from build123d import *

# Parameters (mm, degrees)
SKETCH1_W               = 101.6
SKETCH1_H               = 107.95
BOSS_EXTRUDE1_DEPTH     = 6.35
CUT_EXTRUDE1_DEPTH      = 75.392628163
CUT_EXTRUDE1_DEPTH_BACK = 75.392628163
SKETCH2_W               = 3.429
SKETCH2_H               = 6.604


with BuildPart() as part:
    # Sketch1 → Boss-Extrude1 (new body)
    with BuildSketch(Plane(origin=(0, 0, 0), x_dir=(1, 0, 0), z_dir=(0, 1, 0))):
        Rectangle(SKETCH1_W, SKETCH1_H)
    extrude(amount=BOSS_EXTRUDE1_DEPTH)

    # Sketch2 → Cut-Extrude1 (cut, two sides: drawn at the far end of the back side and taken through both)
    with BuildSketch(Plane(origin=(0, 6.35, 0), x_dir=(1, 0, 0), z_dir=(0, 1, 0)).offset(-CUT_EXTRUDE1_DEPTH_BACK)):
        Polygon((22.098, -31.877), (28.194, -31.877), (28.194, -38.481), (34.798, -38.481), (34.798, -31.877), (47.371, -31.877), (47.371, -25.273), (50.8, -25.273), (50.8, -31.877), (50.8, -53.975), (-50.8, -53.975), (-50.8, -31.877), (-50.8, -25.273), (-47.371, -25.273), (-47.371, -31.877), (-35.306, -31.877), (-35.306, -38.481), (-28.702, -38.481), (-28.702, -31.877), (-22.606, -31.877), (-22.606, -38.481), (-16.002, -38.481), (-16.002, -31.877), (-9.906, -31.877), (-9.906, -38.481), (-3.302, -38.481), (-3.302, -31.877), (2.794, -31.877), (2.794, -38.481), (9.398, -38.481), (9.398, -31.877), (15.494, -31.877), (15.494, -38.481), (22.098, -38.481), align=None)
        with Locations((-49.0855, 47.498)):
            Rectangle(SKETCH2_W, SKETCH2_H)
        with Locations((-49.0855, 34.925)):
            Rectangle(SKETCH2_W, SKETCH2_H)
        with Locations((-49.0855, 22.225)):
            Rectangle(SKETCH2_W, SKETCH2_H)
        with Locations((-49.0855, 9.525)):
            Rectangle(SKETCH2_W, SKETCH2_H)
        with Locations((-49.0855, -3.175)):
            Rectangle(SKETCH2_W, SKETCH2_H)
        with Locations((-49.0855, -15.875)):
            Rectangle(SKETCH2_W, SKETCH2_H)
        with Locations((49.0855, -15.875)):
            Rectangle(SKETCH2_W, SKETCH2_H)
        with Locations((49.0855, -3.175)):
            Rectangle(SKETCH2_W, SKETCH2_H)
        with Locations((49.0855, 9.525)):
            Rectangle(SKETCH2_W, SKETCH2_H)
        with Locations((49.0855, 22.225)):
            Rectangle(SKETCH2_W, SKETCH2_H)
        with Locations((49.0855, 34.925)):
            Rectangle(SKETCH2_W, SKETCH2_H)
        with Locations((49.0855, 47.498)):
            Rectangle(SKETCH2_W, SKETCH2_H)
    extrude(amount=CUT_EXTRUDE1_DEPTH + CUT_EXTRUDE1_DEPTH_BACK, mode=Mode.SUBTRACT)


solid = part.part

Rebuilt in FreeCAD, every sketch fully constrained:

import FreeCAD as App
import Part
import Sketcher
Q = App.Units.Quantity

doc = App.newDocument("Part")
params = doc.addObject("Spreadsheet::Sheet", "Params")
for row, (alias, value) in enumerate([
    ("sketch1_width", "4 in"),
    ("sketch1_height", "4.25 in"),
    ("pad1_length", "0.25 in"),
    ("sketch2_width", "4 in"),
    ("sketch2_width2", "0.24 in"),
    ("sketch2_width3", "0.26 in"),
    ("sketch2_height", "1.13 in"),
    ("sketch2_width4", "0.475 in"),
], start=1):
    params.set(f"A{row}", alias)
    params.set(f"B{row}", "=" + value)
    params.setAlias(f"B{row}", alias)

body = doc.addObject("PartDesign::Body", "Body")

sketch1 = body.newObject("Sketcher::SketchObject", "Sketch")
sketch1.AttachmentSupport = (doc.getObject("XZ_Plane"), [""])
sketch1.MapMode = "FlatFace"
sketch1.addGeometry(Part.LineSegment(App.Vector(-51, -54, 0), App.Vector(-51, 54, 0)), False)
sketch1.addGeometry(Part.LineSegment(App.Vector(-51, 54, 0), App.Vector(51, 54, 0)), False)
sketch1.addGeometry(Part.LineSegment(App.Vector(51, 54, 0), App.Vector(51, -54, 0)), False)
sketch1.addGeometry(Part.LineSegment(App.Vector(51, -54, 0), App.Vector(-51, -54, 0)), False)
sketch1.addConstraint(Sketcher.Constraint("Coincident", 0, 2, 1, 1))
sketch1.addConstraint(Sketcher.Constraint("Coincident", 1, 2, 2, 1))
sketch1.addConstraint(Sketcher.Constraint("Coincident", 2, 2, 3, 1))
sketch1.addConstraint(Sketcher.Constraint("Coincident", 3, 2, 0, 1))
sketch1.addConstraint(Sketcher.Constraint("Vertical", 0))
sketch1.addConstraint(Sketcher.Constraint("Horizontal", 1))
sketch1.addConstraint(Sketcher.Constraint("Vertical", 2))
sketch1.addConstraint(Sketcher.Constraint("Horizontal", 3))
sketch1.addConstraint(Sketcher.Constraint("Symmetric", 0, 2, 2, 2, -1, 1))
sketch1.addConstraint(Sketcher.Constraint("DistanceX", 1, 1, 1, 2, Q("4 in")))
sketch1.addConstraint(Sketcher.Constraint("DistanceY", 0, 1, 0, 2, Q("4.25 in")))
sketch1.setExpression("Constraints[9]", "Params.sketch1_width")
sketch1.setExpression("Constraints[10]", "Params.sketch1_height")
pad1 = body.newObject("PartDesign::Pad", "Pad")
pad1.Profile = sketch1
pad1.setExpression("Length", "Params.pad1_length")
pad1.Reversed = True

sketch2 = body.newObject("Sketcher::SketchObject", "Sketch001")
sketch2.AttachmentSupport = (doc.getObject("XZ_Plane"), [""])
sketch2.MapMode = "FlatFace"
sketch2.AttachmentOffset = App.Placement(App.Vector(0, 0, -0.25 * 25.4), App.Rotation())
sketch2.addGeometry(Part.LineSegment(App.Vector(28.2, 31.9, 0), App.Vector(22.1, 31.9, 0)), False)
sketch2.addGeometry(Part.LineSegment(App.Vector(22.1, 31.9, 0), App.Vector(22.1, 38.5, 0)), False)
sketch2.addGeometry(Part.LineSegment(App.Vector(22.1, 38.5, 0), App.Vector(15.5, 38.5, 0)), False)
sketch2.addGeometry(Part.LineSegment(App.Vector(15.5, 38.5, 0), App.Vector(15.5, 31.9, 0)), False)
sketch2.addGeometry(Part.LineSegment(App.Vector(15.5, 31.9, 0), App.Vector(9.4, 31.9, 0)), False)
sketch2.addGeometry(Part.LineSegment(App.Vector(9.4, 31.9, 0), App.Vector(9.4, 38.5, 0)), False)
sketch2.addGeometry(Part.LineSegment(App.Vector(9.4, 38.5, 0), App.Vector(2.8, 38.5, 0)), False)
sketch2.addGeometry(Part.LineSegment(App.Vector(2.8, 38.5, 0), App.Vector(2.8, 31.9, 0)), False)
sketch2.addGeometry(Part.LineSegment(App.Vector(2.8, 31.9, 0), App.Vector(-3.3, 31.9, 0)), False)
sketch2.addGeometry(Part.LineSegment(App.Vector(-3.3, 31.9, 0), App.Vector(-3.3, 38.5, 0)), False)
sketch2.addGeometry(Part.LineSegment(App.Vector(-3.3, 38.5, 0), App.Vector(-9.9, 38.5, 0)), False)
sketch2.addGeometry(Part.LineSegment(App.Vector(-9.9, 38.5, 0), App.Vector(-9.9, 31.9, 0)), False)
sketch2.addGeometry(Part.LineSegment(App.Vector(-9.9, 31.9, 0), App.Vector(-16, 31.9, 0)), False)
sketch2.addGeometry(Part.LineSegment(App.Vector(-16, 31.9, 0), App.Vector(-16, 38.5, 0)), False)
sketch2.addGeometry(Part.LineSegment(App.Vector(-16, 38.5, 0), App.Vector(-22.6, 38.5, 0)), False)
sketch2.addGeometry(Part.LineSegment(App.Vector(-22.6, 38.5, 0), App.Vector(-22.6, 31.9, 0)), False)
sketch2.addGeometry(Part.LineSegment(App.Vector(-22.6, 31.9, 0), App.Vector(-28.7, 31.9, 0)), False)
sketch2.addGeometry(Part.LineSegment(App.Vector(-28.7, 31.9, 0), App.Vector(-28.7, 38.5, 0)), False)
sketch2.addGeometry(Part.LineSegment(App.Vector(-28.7, 38.5, 0), App.Vector(-35.3, 38.5, 0)), False)
sketch2.addGeometry(Part.LineSegment(App.Vector(-35.3, 38.5, 0), App.Vector(-35.3, 31.9, 0)), False)
sketch2.addGeometry(Part.LineSegment(App.Vector(-35.3, 31.9, 0), App.Vector(-47.4, 31.9, 0)), False)
sketch2.addGeometry(Part.LineSegment(App.Vector(-47.4, 31.9, 0), App.Vector(-47.4, 25.3, 0)), False)
sketch2.addGeometry(Part.LineSegment(App.Vector(-47.4, 25.3, 0), App.Vector(-50.8, 25.3, 0)), False)
sketch2.addGeometry(Part.LineSegment(App.Vector(-50.8, 25.3, 0), App.Vector(-50.8, 54, 0)), False)
sketch2.addGeometry(Part.LineSegment(App.Vector(-50.8, 54, 0), App.Vector(50.8, 54, 0)), False)
sketch2.addGeometry(Part.LineSegment(App.Vector(50.8, 54, 0), App.Vector(50.8, 25.3, 0)), False)
sketch2.addGeometry(Part.LineSegment(App.Vector(50.8, 25.3, 0), App.Vector(47.4, 25.3, 0)), False)
sketch2.addGeometry(Part.LineSegment(App.Vector(47.4, 25.3, 0), App.Vector(47.4, 31.9, 0)), False)
sketch2.addGeometry(Part.LineSegment(App.Vector(47.4, 31.9, 0), App.Vector(34.8, 31.9, 0)), False)
sketch2.addGeometry(Part.LineSegment(App.Vector(34.8, 31.9, 0), App.Vector(34.8, 38.5, 0)), False)
sketch2.addGeometry(Part.LineSegment(App.Vector(34.8, 38.5, 0), App.Vector(28.2, 38.5, 0)), False)
sketch2.addGeometry(Part.LineSegment(App.Vector(28.2, 38.5, 0), App.Vector(28.2, 31.9, 0)), False)
sketch2.addGeometry(Part.LineSegment(App.Vector(-50.8, -50.8, 0), App.Vector(-50.8, -44.2, 0)), False)
sketch2.addGeometry(Part.LineSegment(App.Vector(-50.8, -44.2, 0), App.Vector(-47.4, -44.2, 0)), False)
sketch2.addGeometry(Part.LineSegment(App.Vector(-47.4, -44.2, 0), App.Vector(-47.4, -50.8, 0)), False)
sketch2.addGeometry(Part.LineSegment(App.Vector(-47.4, -50.8, 0), App.Vector(-50.8, -50.8, 0)), False)
sketch2.addGeometry(Part.LineSegment(App.Vector(-50.8, -38.2, 0), App.Vector(-50.8, -31.6, 0)), False)
sketch2.addGeometry(Part.LineSegment(App.Vector(-50.8, -31.6, 0), App.Vector(-47.4, -31.6, 0)), False)
sketch2.addGeometry(Part.LineSegment(App.Vector(-47.4, -31.6, 0), App.Vector(-47.4, -38.2, 0)), False)
sketch2.addGeometry(Part.LineSegment(App.Vector(-47.4, -38.2, 0), App.Vector(-50.8, -38.2, 0)), False)
sketch2.addGeometry(Part.LineSegment(App.Vector(-50.8, -25.5, 0), App.Vector(-50.8, -18.9, 0)), False)
sketch2.addGeometry(Part.LineSegment(App.Vector(-50.8, -18.9, 0), App.Vector(-47.4, -18.9, 0)), False)
sketch2.addGeometry(Part.LineSegment(App.Vector(-47.4, -18.9, 0), App.Vector(-47.4, -25.5, 0)), False)
sketch2.addGeometry(Part.LineSegment(App.Vector(-47.4, -25.5, 0), App.Vector(-50.8, -25.5, 0)), False)
sketch2.addGeometry(Part.LineSegment(App.Vector(-50.8, -12.8, 0), App.Vector(-50.8, -6.2, 0)), False)
sketch2.addGeometry(Part.LineSegment(App.Vector(-50.8, -6.2, 0), App.Vector(-47.4, -6.2, 0)), False)
sketch2.addGeometry(Part.LineSegment(App.Vector(-47.4, -6.2, 0), App.Vector(-47.4, -12.8, 0)), False)
sketch2.addGeometry(Part.LineSegment(App.Vector(-47.4, -12.8, 0), App.Vector(-50.8, -12.8, 0)), False)
sketch2.addGeometry(Part.LineSegment(App.Vector(-50.8, -0.1, 0), App.Vector(-50.8, 6.5, 0)), False)
sketch2.addGeometry(Part.LineSegment(App.Vector(-50.8, 6.5, 0), App.Vector(-47.4, 6.5, 0)), False)
sketch2.addGeometry(Part.LineSegment(App.Vector(-47.4, 6.5, 0), App.Vector(-47.4, -0.1, 0)), False)
sketch2.addGeometry(Part.LineSegment(App.Vector(-47.4, -0.1, 0), App.Vector(-50.8, -0.1, 0)), False)
sketch2.addGeometry(Part.LineSegment(App.Vector(-50.8, 12.6, 0), App.Vector(-50.8, 19.2, 0)), False)
sketch2.addGeometry(Part.LineSegment(App.Vector(-50.8, 19.2, 0), App.Vector(-47.4, 19.2, 0)), False)
sketch2.addGeometry(Part.LineSegment(App.Vector(-47.4, 19.2, 0), App.Vector(-47.4, 12.6, 0)), False)
sketch2.addGeometry(Part.LineSegment(App.Vector(-47.4, 12.6, 0), App.Vector(-50.8, 12.6, 0)), False)
sketch2.addGeometry(Part.LineSegment(App.Vector(47.4, 12.6, 0), App.Vector(47.4, 19.2, 0)), False)
sketch2.addGeometry(Part.LineSegment(App.Vector(47.4, 19.2, 0), App.Vector(50.8, 19.2, 0)), False)
sketch2.addGeometry(Part.LineSegment(App.Vector(50.8, 19.2, 0), App.Vector(50.8, 12.6, 0)), False)
sketch2.addGeometry(Part.LineSegment(App.Vector(50.8, 12.6, 0), App.Vector(47.4, 12.6, 0)), False)
sketch2.addGeometry(Part.LineSegment(App.Vector(47.4, -0.1, 0), App.Vector(47.4, 6.5, 0)), False)
sketch2.addGeometry(Part.LineSegment(App.Vector(47.4, 6.5, 0), App.Vector(50.8, 6.5, 0)), False)
sketch2.addGeometry(Part.LineSegment(App.Vector(50.8, 6.5, 0), App.Vector(50.8, -0.1, 0)), False)
sketch2.addGeometry(Part.LineSegment(App.Vector(50.8, -0.1, 0), App.Vector(47.4, -0.1, 0)), False)
sketch2.addGeometry(Part.LineSegment(App.Vector(47.4, -12.8, 0), App.Vector(47.4, -6.2, 0)), False)
sketch2.addGeometry(Part.LineSegment(App.Vector(47.4, -6.2, 0), App.Vector(50.8, -6.2, 0)), False)
sketch2.addGeometry(Part.LineSegment(App.Vector(50.8, -6.2, 0), App.Vector(50.8, -12.8, 0)), False)
sketch2.addGeometry(Part.LineSegment(App.Vector(50.8, -12.8, 0), App.Vector(47.4, -12.8, 0)), False)
sketch2.addGeometry(Part.LineSegment(App.Vector(47.4, -25.5, 0), App.Vector(47.4, -18.9, 0)), False)
sketch2.addGeometry(Part.LineSegment(App.Vector(47.4, -18.9, 0), App.Vector(50.8, -18.9, 0)), False)
sketch2.addGeometry(Part.LineSegment(App.Vector(50.8, -18.9, 0), App.Vector(50.8, -25.5, 0)), False)
sketch2.addGeometry(Part.LineSegment(App.Vector(50.8, -25.5, 0), App.Vector(47.4, -25.5, 0)), False)
sketch2.addGeometry(Part.LineSegment(App.Vector(47.4, -38.2, 0), App.Vector(47.4, -31.6, 0)), False)
sketch2.addGeometry(Part.LineSegment(App.Vector(47.4, -31.6, 0), App.Vector(50.8, -31.6, 0)), False)
sketch2.addGeometry(Part.LineSegment(App.Vector(50.8, -31.6, 0), App.Vector(50.8, -38.2, 0)), False)
sketch2.addGeometry(Part.LineSegment(App.Vector(50.8, -38.2, 0), App.Vector(47.4, -38.2, 0)), False)
sketch2.addGeometry(Part.LineSegment(App.Vector(47.4, -50.8, 0), App.Vector(47.4, -44.2, 0)), False)
sketch2.addGeometry(Part.LineSegment(App.Vector(47.4, -44.2, 0), App.Vector(50.8, -44.2, 0)), False)
sketch2.addGeometry(Part.LineSegment(App.Vector(50.8, -44.2, 0), App.Vector(50.8, -50.8, 0)), False)
sketch2.addGeometry(Part.LineSegment(App.Vector(50.8, -50.8, 0), App.Vector(47.4, -50.8, 0)), False)
sketch2.addConstraint(Sketcher.Constraint("Coincident", 0, 2, 1, 1))
sketch2.addConstraint(Sketcher.Constraint("Coincident", 1, 2, 2, 1))
sketch2.addConstraint(Sketcher.Constraint("Coincident", 2, 2, 3, 1))
sketch2.addConstraint(Sketcher.Constraint("Coincident", 3, 2, 4, 1))
sketch2.addConstraint(Sketcher.Constraint("Coincident", 4, 2, 5, 1))
sketch2.addConstraint(Sketcher.Constraint("Coincident", 5, 2, 6, 1))
sketch2.addConstraint(Sketcher.Constraint("Coincident", 6, 2, 7, 1))
sketch2.addConstraint(Sketcher.Constraint("Coincident", 7, 2, 8, 1))
sketch2.addConstraint(Sketcher.Constraint("Coincident", 8, 2, 9, 1))
sketch2.addConstraint(Sketcher.Constraint("Coincident", 9, 2, 10, 1))
sketch2.addConstraint(Sketcher.Constraint("Coincident", 10, 2, 11, 1))
sketch2.addConstraint(Sketcher.Constraint("Coincident", 11, 2, 12, 1))
sketch2.addConstraint(Sketcher.Constraint("Coincident", 12, 2, 13, 1))
sketch2.addConstraint(Sketcher.Constraint("Coincident", 13, 2, 14, 1))
sketch2.addConstraint(Sketcher.Constraint("Coincident", 14, 2, 15, 1))
sketch2.addConstraint(Sketcher.Constraint("Coincident", 15, 2, 16, 1))
sketch2.addConstraint(Sketcher.Constraint("Coincident", 16, 2, 17, 1))
sketch2.addConstraint(Sketcher.Constraint("Coincident", 17, 2, 18, 1))
sketch2.addConstraint(Sketcher.Constraint("Coincident", 18, 2, 19, 1))
sketch2.addConstraint(Sketcher.Constraint("Coincident", 19, 2, 20, 1))
sketch2.addConstraint(Sketcher.Constraint("Coincident", 20, 2, 21, 1))
sketch2.addConstraint(Sketcher.Constraint("Coincident", 21, 2, 22, 1))
sketch2.addConstraint(Sketcher.Constraint("Coincident", 22, 2, 23, 1))
sketch2.addConstraint(Sketcher.Constraint("Coincident", 23, 2, 24, 1))
sketch2.addConstraint(Sketcher.Constraint("Coincident", 24, 2, 25, 1))
sketch2.addConstraint(Sketcher.Constraint("Coincident", 25, 2, 26, 1))
sketch2.addConstraint(Sketcher.Constraint("Coincident", 26, 2, 27, 1))
sketch2.addConstraint(Sketcher.Constraint("Coincident", 27, 2, 28, 1))
sketch2.addConstraint(Sketcher.Constraint("Coincident", 28, 2, 29, 1))
sketch2.addConstraint(Sketcher.Constraint("Coincident", 29, 2, 30, 1))
sketch2.addConstraint(Sketcher.Constraint("Coincident", 30, 2, 31, 1))
sketch2.addConstraint(Sketcher.Constraint("Coincident", 31, 2, 0, 1))
sketch2.addConstraint(Sketcher.Constraint("Coincident", 32, 2, 33, 1))
sketch2.addConstraint(Sketcher.Constraint("Coincident", 33, 2, 34, 1))
sketch2.addConstraint(Sketcher.Constraint("Coincident", 34, 2, 35, 1))
sketch2.addConstraint(Sketcher.Constraint("Coincident", 35, 2, 32, 1))
sketch2.addConstraint(Sketcher.Constraint("Coincident", 36, 2, 37, 1))
sketch2.addConstraint(Sketcher.Constraint("Coincident", 37, 2, 38, 1))
sketch2.addConstraint(Sketcher.Constraint("Coincident", 38, 2, 39, 1))
sketch2.addConstraint(Sketcher.Constraint("Coincident", 39, 2, 36, 1))
sketch2.addConstraint(Sketcher.Constraint("Coincident", 40, 2, 41, 1))
sketch2.addConstraint(Sketcher.Constraint("Coincident", 41, 2, 42, 1))
sketch2.addConstraint(Sketcher.Constraint("Coincident", 42, 2, 43, 1))
sketch2.addConstraint(Sketcher.Constraint("Coincident", 43, 2, 40, 1))
sketch2.addConstraint(Sketcher.Constraint("Coincident", 44, 2, 45, 1))
sketch2.addConstraint(Sketcher.Constraint("Coincident", 45, 2, 46, 1))
sketch2.addConstraint(Sketcher.Constraint("Coincident", 46, 2, 47, 1))
sketch2.addConstraint(Sketcher.Constraint("Coincident", 47, 2, 44, 1))
sketch2.addConstraint(Sketcher.Constraint("Coincident", 48, 2, 49, 1))
sketch2.addConstraint(Sketcher.Constraint("Coincident", 49, 2, 50, 1))
sketch2.addConstraint(Sketcher.Constraint("Coincident", 50, 2, 51, 1))
sketch2.addConstraint(Sketcher.Constraint("Coincident", 51, 2, 48, 1))
sketch2.addConstraint(Sketcher.Constraint("Coincident", 52, 2, 53, 1))
sketch2.addConstraint(Sketcher.Constraint("Coincident", 53, 2, 54, 1))
sketch2.addConstraint(Sketcher.Constraint("Coincident", 54, 2, 55, 1))
sketch2.addConstraint(Sketcher.Constraint("Coincident", 55, 2, 52, 1))
sketch2.addConstraint(Sketcher.Constraint("Coincident", 56, 2, 57, 1))
sketch2.addConstraint(Sketcher.Constraint("Coincident", 57, 2, 58, 1))
sketch2.addConstraint(Sketcher.Constraint("Coincident", 58, 2, 59, 1))
sketch2.addConstraint(Sketcher.Constraint("Coincident", 59, 2, 56, 1))
sketch2.addConstraint(Sketcher.Constraint("Coincident", 60, 2, 61, 1))
sketch2.addConstraint(Sketcher.Constraint("Coincident", 61, 2, 62, 1))
sketch2.addConstraint(Sketcher.Constraint("Coincident", 62, 2, 63, 1))
sketch2.addConstraint(Sketcher.Constraint("Coincident", 63, 2, 60, 1))
sketch2.addConstraint(Sketcher.Constraint("Coincident", 64, 2, 65, 1))
sketch2.addConstraint(Sketcher.Constraint("Coincident", 65, 2, 66, 1))
sketch2.addConstraint(Sketcher.Constraint("Coincident", 66, 2, 67, 1))
sketch2.addConstraint(Sketcher.Constraint("Coincident", 67, 2, 64, 1))
sketch2.addConstraint(Sketcher.Constraint("Coincident", 68, 2, 69, 1))
sketch2.addConstraint(Sketcher.Constraint("Coincident", 69, 2, 70, 1))
sketch2.addConstraint(Sketcher.Constraint("Coincident", 70, 2, 71, 1))
sketch2.addConstraint(Sketcher.Constraint("Coincident", 71, 2, 68, 1))
sketch2.addConstraint(Sketcher.Constraint("Coincident", 72, 2, 73, 1))
sketch2.addConstraint(Sketcher.Constraint("Coincident", 73, 2, 74, 1))
sketch2.addConstraint(Sketcher.Constraint("Coincident", 74, 2, 75, 1))
sketch2.addConstraint(Sketcher.Constraint("Coincident", 75, 2, 72, 1))
sketch2.addConstraint(Sketcher.Constraint("Coincident", 76, 2, 77, 1))
sketch2.addConstraint(Sketcher.Constraint("Coincident", 77, 2, 78, 1))
sketch2.addConstraint(Sketcher.Constraint("Coincident", 78, 2, 79, 1))
sketch2.addConstraint(Sketcher.Constraint("Coincident", 79, 2, 76, 1))
sketch2.addConstraint(Sketcher.Constraint("Horizontal", 0))
sketch2.addConstraint(Sketcher.Constraint("Vertical", 1))
sketch2.addConstraint(Sketcher.Constraint("Horizontal", 2))
sketch2.addConstraint(Sketcher.Constraint("Vertical", 3))
sketch2.addConstraint(Sketcher.Constraint("Horizontal", 4))
sketch2.addConstraint(Sketcher.Constraint("Vertical", 5))
sketch2.addConstraint(Sketcher.Constraint("Horizontal", 6))
sketch2.addConstraint(Sketcher.Constraint("Vertical", 7))
sketch2.addConstraint(Sketcher.Constraint("Horizontal", 8))
sketch2.addConstraint(Sketcher.Constraint("Vertical", 9))
sketch2.addConstraint(Sketcher.Constraint("Horizontal", 10))
sketch2.addConstraint(Sketcher.Constraint("Vertical", 11))
sketch2.addConstraint(Sketcher.Constraint("Horizontal", 12))
sketch2.addConstraint(Sketcher.Constraint("Vertical", 13))
sketch2.addConstraint(Sketcher.Constraint("Horizontal", 14))
sketch2.addConstraint(Sketcher.Constraint("Vertical", 15))
sketch2.addConstraint(Sketcher.Constraint("Horizontal", 16))
sketch2.addConstraint(Sketcher.Constraint("Vertical", 17))
sketch2.addConstraint(Sketcher.Constraint("Horizontal", 18))
sketch2.addConstraint(Sketcher.Constraint("Vertical", 19))
sketch2.addConstraint(Sketcher.Constraint("Horizontal", 20))
sketch2.addConstraint(Sketcher.Constraint("Vertical", 21))
sketch2.addConstraint(Sketcher.Constraint("Horizontal", 22))
sketch2.addConstraint(Sketcher.Constraint("Vertical", 23))
sketch2.addConstraint(Sketcher.Constraint("Horizontal", 24))
sketch2.addConstraint(Sketcher.Constraint("Vertical", 25))
sketch2.addConstraint(Sketcher.Constraint("Horizontal", 26))
sketch2.addConstraint(Sketcher.Constraint("Vertical", 27))
sketch2.addConstraint(Sketcher.Constraint("Horizontal", 28))
sketch2.addConstraint(Sketcher.Constraint("Vertical", 29))
sketch2.addConstraint(Sketcher.Constraint("Horizontal", 30))
sketch2.addConstraint(Sketcher.Constraint("Vertical", 31))
sketch2.addConstraint(Sketcher.Constraint("Vertical", 32))
sketch2.addConstraint(Sketcher.Constraint("Horizontal", 33))
sketch2.addConstraint(Sketcher.Constraint("Vertical", 34))
sketch2.addConstraint(Sketcher.Constraint("Horizontal", 35))
sketch2.addConstraint(Sketcher.Constraint("Vertical", 36))
sketch2.addConstraint(Sketcher.Constraint("Horizontal", 37))
sketch2.addConstraint(Sketcher.Constraint("Vertical", 38))
sketch2.addConstraint(Sketcher.Constraint("Horizontal", 39))
sketch2.addConstraint(Sketcher.Constraint("Vertical", 40))
sketch2.addConstraint(Sketcher.Constraint("Horizontal", 41))
sketch2.addConstraint(Sketcher.Constraint("Vertical", 42))
sketch2.addConstraint(Sketcher.Constraint("Horizontal", 43))
sketch2.addConstraint(Sketcher.Constraint("Vertical", 44))
sketch2.addConstraint(Sketcher.Constraint("Horizontal", 45))
sketch2.addConstraint(Sketcher.Constraint("Vertical", 46))
sketch2.addConstraint(Sketcher.Constraint("Horizontal", 47))
sketch2.addConstraint(Sketcher.Constraint("Vertical", 48))
sketch2.addConstraint(Sketcher.Constraint("Horizontal", 49))
sketch2.addConstraint(Sketcher.Constraint("Vertical", 50))
sketch2.addConstraint(Sketcher.Constraint("Horizontal", 51))
sketch2.addConstraint(Sketcher.Constraint("Vertical", 52))
sketch2.addConstraint(Sketcher.Constraint("Horizontal", 53))
sketch2.addConstraint(Sketcher.Constraint("Vertical", 54))
sketch2.addConstraint(Sketcher.Constraint("Horizontal", 55))
sketch2.addConstraint(Sketcher.Constraint("Vertical", 56))
sketch2.addConstraint(Sketcher.Constraint("Horizontal", 57))
sketch2.addConstraint(Sketcher.Constraint("Vertical", 58))
sketch2.addConstraint(Sketcher.Constraint("Horizontal", 59))
sketch2.addConstraint(Sketcher.Constraint("Vertical", 60))
sketch2.addConstraint(Sketcher.Constraint("Horizontal", 61))
sketch2.addConstraint(Sketcher.Constraint("Vertical", 62))
sketch2.addConstraint(Sketcher.Constraint("Horizontal", 63))
sketch2.addConstraint(Sketcher.Constraint("Vertical", 64))
sketch2.addConstraint(Sketcher.Constraint("Horizontal", 65))
sketch2.addConstraint(Sketcher.Constraint("Vertical", 66))
sketch2.addConstraint(Sketcher.Constraint("Horizontal", 67))
sketch2.addConstraint(Sketcher.Constraint("Vertical", 68))
sketch2.addConstraint(Sketcher.Constraint("Horizontal", 69))
sketch2.addConstraint(Sketcher.Constraint("Vertical", 70))
sketch2.addConstraint(Sketcher.Constraint("Horizontal", 71))
sketch2.addConstraint(Sketcher.Constraint("Vertical", 72))
sketch2.addConstraint(Sketcher.Constraint("Horizontal", 73))
sketch2.addConstraint(Sketcher.Constraint("Vertical", 74))
sketch2.addConstraint(Sketcher.Constraint("Horizontal", 75))
sketch2.addConstraint(Sketcher.Constraint("Vertical", 76))
sketch2.addConstraint(Sketcher.Constraint("Horizontal", 77))
sketch2.addConstraint(Sketcher.Constraint("Vertical", 78))
sketch2.addConstraint(Sketcher.Constraint("Horizontal", 79))
sketch2.addConstraint(Sketcher.Constraint("Symmetric", 22, 2, 25, 2, -2))
sketch2.addConstraint(Sketcher.Constraint("Symmetric", 20, 2, 27, 2, -2))
sketch2.addConstraint(Sketcher.Constraint("Symmetric", 53, 2, 56, 2, -2))
sketch2.addConstraint(Sketcher.Constraint("Symmetric", 55, 2, 58, 2, -2))
sketch2.addConstraint(Sketcher.Constraint("Symmetric", 49, 2, 60, 2, -2))
sketch2.addConstraint(Sketcher.Constraint("Symmetric", 51, 2, 62, 2, -2))
sketch2.addConstraint(Sketcher.Constraint("Symmetric", 45, 2, 64, 2, -2))
sketch2.addConstraint(Sketcher.Constraint("Symmetric", 47, 2, 66, 2, -2))
sketch2.addConstraint(Sketcher.Constraint("Symmetric", 41, 2, 68, 2, -2))
sketch2.addConstraint(Sketcher.Constraint("Symmetric", 43, 2, 70, 2, -2))
sketch2.addConstraint(Sketcher.Constraint("Symmetric", 37, 2, 72, 2, -2))
sketch2.addConstraint(Sketcher.Constraint("Symmetric", 39, 2, 74, 2, -2))
sketch2.addConstraint(Sketcher.Constraint("Symmetric", 33, 2, 76, 2, -2))
sketch2.addConstraint(Sketcher.Constraint("Symmetric", 35, 2, 78, 2, -2))
sketch2.addConstraint(Sketcher.Constraint("Horizontal", 0, 2, 3, 2))
sketch2.addConstraint(Sketcher.Constraint("Horizontal", 2, 2, 5, 2))
sketch2.addConstraint(Sketcher.Constraint("Horizontal", 4, 2, 7, 2))
sketch2.addConstraint(Sketcher.Constraint("Horizontal", 6, 2, 9, 2))
sketch2.addConstraint(Sketcher.Constraint("Horizontal", 8, 2, 11, 2))
sketch2.addConstraint(Sketcher.Constraint("Horizontal", 10, 2, 13, 2))
sketch2.addConstraint(Sketcher.Constraint("Horizontal", 12, 2, 15, 2))
sketch2.addConstraint(Sketcher.Constraint("Horizontal", 14, 2, 17, 2))
sketch2.addConstraint(Sketcher.Constraint("Horizontal", 16, 2, 19, 2))
sketch2.addConstraint(Sketcher.Constraint("Horizontal", 18, 2, 29, 2))
sketch2.addConstraint(Sketcher.Constraint("Vertical", 23, 2, 32, 2))
sketch2.addConstraint(Sketcher.Constraint("Vertical", 21, 2, 33, 2))
sketch2.addConstraint(Sketcher.Constraint("Vertical", 35, 2, 36, 2))
sketch2.addConstraint(Sketcher.Constraint("Vertical", 34, 2, 37, 2))
sketch2.addConstraint(Sketcher.Constraint("Vertical", 39, 2, 40, 2))
sketch2.addConstraint(Sketcher.Constraint("Vertical", 38, 2, 41, 2))
sketch2.addConstraint(Sketcher.Constraint("Vertical", 43, 2, 44, 2))
sketch2.addConstraint(Sketcher.Constraint("Vertical", 42, 2, 45, 2))
sketch2.addConstraint(Sketcher.Constraint("Vertical", 47, 2, 48, 2))
sketch2.addConstraint(Sketcher.Constraint("Vertical", 46, 2, 49, 2))
sketch2.addConstraint(Sketcher.Constraint("Vertical", 51, 2, 52, 2))
sketch2.addConstraint(Sketcher.Constraint("Vertical", 50, 2, 53, 2))
sketch2.addConstraint(Sketcher.Constraint("Equal", 0, 4))
sketch2.addConstraint(Sketcher.Constraint("Equal", 2, 6))
sketch2.addConstraint(Sketcher.Constraint("Equal", 4, 8))
sketch2.addConstraint(Sketcher.Constraint("Equal", 6, 10))
sketch2.addConstraint(Sketcher.Constraint("Equal", 8, 12))
sketch2.addConstraint(Sketcher.Constraint("Equal", 10, 14))
sketch2.addConstraint(Sketcher.Constraint("Equal", 12, 16))
sketch2.addConstraint(Sketcher.Constraint("Equal", 14, 18))
sketch2.addConstraint(Sketcher.Constraint("Equal", 18, 30))
sketch2.addConstraint(Sketcher.Constraint("Equal", 30, 1))
sketch2.addConstraint(Sketcher.Constraint("Equal", 19, 21))
sketch2.addConstraint(Sketcher.Constraint("Equal", 31, 32))
sketch2.addConstraint(Sketcher.Constraint("Equal", 34, 36))
sketch2.addConstraint(Sketcher.Constraint("Equal", 38, 40))
sketch2.addConstraint(Sketcher.Constraint("Equal", 42, 44))
sketch2.addConstraint(Sketcher.Constraint("Equal", 46, 48))
sketch2.addConstraint(Sketcher.Constraint("Equal", 50, 52))
sketch2.addConstraint(Sketcher.Constraint("DistanceX", 24, 1, 24, 2, Q("4 in")))
sketch2.addConstraint(Sketcher.Constraint("DistanceY", 34, 2, -1, 1, Q("2 in")))
sketch2.addConstraint(Sketcher.Constraint("DistanceX", 0, 2, 0, 1, Q("0.24 in")))
sketch2.addConstraint(Sketcher.Constraint("DistanceX", 2, 2, 2, 1, Q("0.26 in")))
sketch2.addConstraint(Sketcher.Constraint("DistanceY", 23, 1, 23, 2, Q("1.13 in")))
sketch2.addConstraint(Sketcher.Constraint("DistanceX", 20, 2, 20, 1, Q("0.475 in")))
sketch2.addConstraint(Sketcher.Constraint("DistanceX", 22, 2, 22, 1, Q("0.135 in")))
sketch2.addConstraint(Sketcher.Constraint("DistanceY", -1, 1, 0, 2, Q("1.255 in")))
sketch2.addConstraint(Sketcher.Constraint("DistanceY", 36, 2, -1, 1, Q("1.245 in")))
sketch2.addConstraint(Sketcher.Constraint("DistanceY", 40, 2, -1, 1, Q("0.745 in")))
sketch2.addConstraint(Sketcher.Constraint("DistanceY", 44, 2, -1, 1, Q("0.245 in")))
sketch2.addConstraint(Sketcher.Constraint("DistanceY", -1, 1, 48, 2, Q("0.255 in")))
sketch2.addConstraint(Sketcher.Constraint("DistanceY", -1, 1, 52, 2, Q("0.755 in")))
sketch2.setExpression("Constraints[213]", "Params.sketch2_width")
sketch2.setExpression("Constraints[215]", "Params.sketch2_width2")
sketch2.setExpression("Constraints[216]", "Params.sketch2_width3")
sketch2.setExpression("Constraints[217]", "Params.sketch2_height")
sketch2.setExpression("Constraints[218]", "Params.sketch2_width4")
pocket1 = body.newObject("PartDesign::Pocket", "Pocket")
pocket1.Profile = sketch2
pocket1.Type = "ThroughAll"
pocket1.Midplane = True

doc.recompute()
